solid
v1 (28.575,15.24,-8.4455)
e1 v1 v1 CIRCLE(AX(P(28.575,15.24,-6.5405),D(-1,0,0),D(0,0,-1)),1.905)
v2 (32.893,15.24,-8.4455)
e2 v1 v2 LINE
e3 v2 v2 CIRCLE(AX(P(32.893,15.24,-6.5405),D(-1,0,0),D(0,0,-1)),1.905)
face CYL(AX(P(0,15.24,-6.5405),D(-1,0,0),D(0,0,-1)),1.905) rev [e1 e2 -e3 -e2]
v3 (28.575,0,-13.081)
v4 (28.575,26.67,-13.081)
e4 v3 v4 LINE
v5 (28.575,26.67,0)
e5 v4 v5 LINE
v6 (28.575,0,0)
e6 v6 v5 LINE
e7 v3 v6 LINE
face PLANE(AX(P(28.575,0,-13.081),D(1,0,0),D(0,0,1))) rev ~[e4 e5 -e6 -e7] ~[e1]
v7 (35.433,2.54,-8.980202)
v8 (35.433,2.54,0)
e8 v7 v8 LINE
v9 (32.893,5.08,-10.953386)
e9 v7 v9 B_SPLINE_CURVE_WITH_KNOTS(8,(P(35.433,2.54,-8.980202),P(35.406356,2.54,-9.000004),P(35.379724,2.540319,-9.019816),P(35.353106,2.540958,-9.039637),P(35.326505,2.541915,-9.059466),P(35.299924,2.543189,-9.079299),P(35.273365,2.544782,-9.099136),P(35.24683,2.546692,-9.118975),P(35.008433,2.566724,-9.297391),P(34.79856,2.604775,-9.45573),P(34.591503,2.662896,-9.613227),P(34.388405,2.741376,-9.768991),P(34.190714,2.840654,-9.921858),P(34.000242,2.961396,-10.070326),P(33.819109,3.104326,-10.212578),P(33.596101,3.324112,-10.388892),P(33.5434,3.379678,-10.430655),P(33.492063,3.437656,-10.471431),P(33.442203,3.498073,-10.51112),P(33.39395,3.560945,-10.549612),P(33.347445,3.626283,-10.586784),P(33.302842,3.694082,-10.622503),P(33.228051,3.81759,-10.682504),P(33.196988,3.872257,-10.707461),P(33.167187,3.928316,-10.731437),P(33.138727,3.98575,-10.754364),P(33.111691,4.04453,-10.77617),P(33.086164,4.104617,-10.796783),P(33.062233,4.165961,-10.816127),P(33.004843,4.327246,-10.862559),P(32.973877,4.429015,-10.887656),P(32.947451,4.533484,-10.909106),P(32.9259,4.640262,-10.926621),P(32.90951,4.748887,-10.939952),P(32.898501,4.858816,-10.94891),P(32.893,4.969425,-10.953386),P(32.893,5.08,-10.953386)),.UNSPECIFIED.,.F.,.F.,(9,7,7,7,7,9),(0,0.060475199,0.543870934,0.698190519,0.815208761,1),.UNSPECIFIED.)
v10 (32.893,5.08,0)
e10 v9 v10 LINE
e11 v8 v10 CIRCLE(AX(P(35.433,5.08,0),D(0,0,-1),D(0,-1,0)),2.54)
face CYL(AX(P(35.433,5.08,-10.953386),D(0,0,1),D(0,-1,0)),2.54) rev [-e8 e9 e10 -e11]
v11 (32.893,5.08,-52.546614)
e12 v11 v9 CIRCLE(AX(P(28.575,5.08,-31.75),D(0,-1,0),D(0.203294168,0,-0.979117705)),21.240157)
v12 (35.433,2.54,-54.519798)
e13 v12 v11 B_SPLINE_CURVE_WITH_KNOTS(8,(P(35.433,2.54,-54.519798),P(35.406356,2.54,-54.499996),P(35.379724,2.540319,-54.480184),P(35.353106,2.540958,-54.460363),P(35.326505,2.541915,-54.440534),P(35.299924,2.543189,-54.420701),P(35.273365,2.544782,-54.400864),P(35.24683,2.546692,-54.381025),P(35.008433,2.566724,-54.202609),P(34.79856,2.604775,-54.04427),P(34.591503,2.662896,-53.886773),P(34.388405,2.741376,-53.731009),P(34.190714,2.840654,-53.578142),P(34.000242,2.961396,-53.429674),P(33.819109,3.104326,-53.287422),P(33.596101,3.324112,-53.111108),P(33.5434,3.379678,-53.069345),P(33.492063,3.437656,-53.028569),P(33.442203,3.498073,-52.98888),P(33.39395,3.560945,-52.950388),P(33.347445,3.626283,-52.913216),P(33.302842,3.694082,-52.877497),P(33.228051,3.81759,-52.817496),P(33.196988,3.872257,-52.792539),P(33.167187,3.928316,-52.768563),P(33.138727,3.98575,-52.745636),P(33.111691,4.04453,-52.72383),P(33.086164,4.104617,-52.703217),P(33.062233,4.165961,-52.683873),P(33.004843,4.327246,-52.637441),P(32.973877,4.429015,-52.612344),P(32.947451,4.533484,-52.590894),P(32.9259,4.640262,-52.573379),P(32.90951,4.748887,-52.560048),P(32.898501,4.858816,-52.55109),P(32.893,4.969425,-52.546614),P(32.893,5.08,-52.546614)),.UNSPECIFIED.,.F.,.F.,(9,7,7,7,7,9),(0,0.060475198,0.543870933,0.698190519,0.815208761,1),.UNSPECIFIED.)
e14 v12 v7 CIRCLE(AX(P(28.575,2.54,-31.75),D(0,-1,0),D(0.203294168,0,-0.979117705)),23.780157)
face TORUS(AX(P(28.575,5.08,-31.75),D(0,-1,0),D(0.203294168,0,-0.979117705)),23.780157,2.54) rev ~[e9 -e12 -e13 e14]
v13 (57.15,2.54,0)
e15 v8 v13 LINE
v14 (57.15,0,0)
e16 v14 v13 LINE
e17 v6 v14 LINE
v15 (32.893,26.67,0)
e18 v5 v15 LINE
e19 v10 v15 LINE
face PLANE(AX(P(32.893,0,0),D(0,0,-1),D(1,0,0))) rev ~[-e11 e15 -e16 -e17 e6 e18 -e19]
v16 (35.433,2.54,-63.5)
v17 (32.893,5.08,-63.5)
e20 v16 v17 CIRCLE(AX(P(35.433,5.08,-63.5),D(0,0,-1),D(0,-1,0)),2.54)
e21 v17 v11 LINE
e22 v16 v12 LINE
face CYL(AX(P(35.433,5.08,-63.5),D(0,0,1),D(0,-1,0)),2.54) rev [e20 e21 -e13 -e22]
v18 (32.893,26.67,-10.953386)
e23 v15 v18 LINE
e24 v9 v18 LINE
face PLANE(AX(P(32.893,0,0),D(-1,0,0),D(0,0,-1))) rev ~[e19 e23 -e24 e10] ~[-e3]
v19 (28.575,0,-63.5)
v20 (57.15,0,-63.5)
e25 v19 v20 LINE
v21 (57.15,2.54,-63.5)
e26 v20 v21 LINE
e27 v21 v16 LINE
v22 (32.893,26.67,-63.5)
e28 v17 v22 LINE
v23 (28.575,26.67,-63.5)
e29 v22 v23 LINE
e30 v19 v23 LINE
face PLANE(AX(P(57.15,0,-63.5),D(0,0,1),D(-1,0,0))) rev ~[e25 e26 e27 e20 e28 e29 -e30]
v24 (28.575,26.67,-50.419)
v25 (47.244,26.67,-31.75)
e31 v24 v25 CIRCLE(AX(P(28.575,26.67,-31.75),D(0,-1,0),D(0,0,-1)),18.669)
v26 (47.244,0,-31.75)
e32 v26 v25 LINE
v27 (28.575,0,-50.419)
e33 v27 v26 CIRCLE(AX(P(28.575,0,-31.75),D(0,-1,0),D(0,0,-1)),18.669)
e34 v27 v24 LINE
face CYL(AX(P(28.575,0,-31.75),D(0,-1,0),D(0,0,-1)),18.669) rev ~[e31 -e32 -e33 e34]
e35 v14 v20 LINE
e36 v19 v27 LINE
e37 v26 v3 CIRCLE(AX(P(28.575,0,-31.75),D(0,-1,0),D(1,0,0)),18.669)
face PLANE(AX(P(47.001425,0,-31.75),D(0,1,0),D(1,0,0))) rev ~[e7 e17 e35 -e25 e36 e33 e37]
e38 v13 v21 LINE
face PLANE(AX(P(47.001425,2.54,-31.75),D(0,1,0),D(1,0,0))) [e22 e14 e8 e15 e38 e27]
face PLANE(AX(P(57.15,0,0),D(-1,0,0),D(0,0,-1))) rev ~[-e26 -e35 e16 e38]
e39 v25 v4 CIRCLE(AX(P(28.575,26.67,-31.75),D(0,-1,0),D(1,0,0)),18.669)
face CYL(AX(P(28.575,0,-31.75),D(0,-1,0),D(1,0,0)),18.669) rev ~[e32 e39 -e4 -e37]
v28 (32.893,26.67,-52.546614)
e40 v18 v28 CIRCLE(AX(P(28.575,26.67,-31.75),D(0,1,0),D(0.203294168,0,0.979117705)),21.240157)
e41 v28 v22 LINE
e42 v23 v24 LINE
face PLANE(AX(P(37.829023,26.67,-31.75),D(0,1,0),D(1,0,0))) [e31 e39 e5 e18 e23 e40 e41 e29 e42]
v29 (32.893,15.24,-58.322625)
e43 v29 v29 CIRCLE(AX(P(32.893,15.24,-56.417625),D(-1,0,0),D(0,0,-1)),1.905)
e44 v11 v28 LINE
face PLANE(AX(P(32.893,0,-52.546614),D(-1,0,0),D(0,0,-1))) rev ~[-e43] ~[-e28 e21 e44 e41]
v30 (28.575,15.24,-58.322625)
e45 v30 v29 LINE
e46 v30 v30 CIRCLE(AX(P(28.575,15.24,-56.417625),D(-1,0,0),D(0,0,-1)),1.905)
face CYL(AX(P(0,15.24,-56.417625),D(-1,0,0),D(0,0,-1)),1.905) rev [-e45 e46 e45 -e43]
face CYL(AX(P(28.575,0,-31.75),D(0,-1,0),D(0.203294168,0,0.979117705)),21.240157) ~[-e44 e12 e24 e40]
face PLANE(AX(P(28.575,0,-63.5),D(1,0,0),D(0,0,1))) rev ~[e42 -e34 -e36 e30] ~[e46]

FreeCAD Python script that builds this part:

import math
import FreeCAD as App
import Part
import Sketcher
from FreeCAD import Vector
Q = App.Units.Quantity


def edges_at(feature, points):
    """Names of the edges that pass closest to the given points."""
    edges = feature.Shape.Edges
    near = lambda p: min(range(len(edges)), key=lambda i: edges[i].distToShape(Part.Vertex(*p))[0])
    return sorted({f"Edge{near(p) + 1}" for p in points})

doc = App.newDocument("Part")
body = doc.addObject("PartDesign::Body", "Body")

sketch1 = doc.addObject("Sketcher::SketchObject", "Sketch")
body.addObject(sketch1)
sketch1.AttachmentSupport = (doc.XZ_Plane, [""])
sketch1.MapMode = "FlatFace"
sketch1.addGeometry([
    Part.LineSegment(Vector(28.6, -13.1, 0), Vector(28.6, 0, 0)),
    Part.LineSegment(Vector(28.6, 0, 0), Vector(32.9, 0, 0)),
    Part.LineSegment(Vector(32.9, 0, 0), Vector(32.9, -11, 0)),
    Part.ArcOfCircle(Part.Circle(Vector(28.6, -31.8, 0), Vector(0, 0, 1), 21.2), math.radians(-78), math.radians(78)),
    Part.LineSegment(Vector(32.9, -52.5, 0), Vector(32.9, -63.5, 0)),
    Part.LineSegment(Vector(32.9, -63.5, 0), Vector(28.6, -63.5, 0)),
    Part.LineSegment(Vector(28.6, -63.5, 0), Vector(28.6, -50.4, 0)),
    Part.ArcOfCircle(Part.Circle(Vector(28.6, -31.8, 0), Vector(0, 0, 1), 18.7), math.radians(-90), math.radians(0)),
    Part.ArcOfCircle(Part.Circle(Vector(28.6, -31.8, 0), Vector(0, 0, 1), 18.7), math.radians(0), math.radians(90)),
], False)
sketch1.addConstraint([
    Sketcher.Constraint("Coincident", 0, 2, 1, 1),
    Sketcher.Constraint("Coincident", 1, 2, 2, 1),
    Sketcher.Constraint("Coincident", 2, 2, 3, 2),
    Sketcher.Constraint("Coincident", 3, 1, 4, 1),
    Sketcher.Constraint("Coincident", 4, 2, 5, 1),
    Sketcher.Constraint("Coincident", 5, 2, 6, 1),
    Sketcher.Constraint("Coincident", 6, 2, 7, 1),
    Sketcher.Constraint("Tangent", 7, 2, 8, 1),
    Sketcher.Constraint("Coincident", 8, 2, 0, 1),
    Sketcher.Constraint("Vertical", 0),
    Sketcher.Constraint("Horizontal", 1),
    Sketcher.Constraint("Vertical", 2),
    Sketcher.Constraint("Vertical", 4),
    Sketcher.Constraint("Horizontal", 5),
    Sketcher.Constraint("Vertical", 6),
    Sketcher.Constraint("Coincident", 7, 3, 3, 3),
    Sketcher.Constraint("Equal", 7, 8),
    Sketcher.Constraint("PointOnObject", 0, 2, -1),
    Sketcher.Constraint("Horizontal", 8, 3, 7, 2),
    Sketcher.Constraint("Vertical", 8, 3, 0, 2),
    Sketcher.Constraint("Vertical", 2, 2, 3, 1),
    Sketcher.Constraint("Vertical", 0, 2, 5, 2),
    Sketcher.Constraint("Equal", 2, 4),
    Sketcher.Constraint("Radius", 7, Q("0.735 in")),
    Sketcher.Constraint("DistanceX", 1, 1, 1, 2, Q("0.17 in")),
    Sketcher.Constraint("DistanceY", 4, 2, -1, 1, Q("2.5 in")),
    Sketcher.Constraint("DistanceX", -1, 1, 7, 2, Q("1.86 in")),
    Sketcher.Constraint("Radius", 3, Q("21.240157 mm")),
])
pad1 = doc.addObject("PartDesign::Pad", "Pad")
body.addObject(pad1)
pad1.Profile = sketch1
pad1.Length = Q("1.05 in")
pad1.Reversed = True

sketch2 = doc.addObject("Sketcher::SketchObject", "Sketch001")
body.addObject(sketch2)
sketch2.AttachmentSupport = (doc.XZ_Plane, [""])
sketch2.MapMode = "FlatFace"
sketch2.addGeometry([
    Part.LineSegment(Vector(33, -11, 0), Vector(33, 0, 0)),
    Part.LineSegment(Vector(33, 0, 0), Vector(57, 0, 0)),
    Part.LineSegment(Vector(57, 0, 0), Vector(57, -64, 0)),
    Part.LineSegment(Vector(57, -64, 0), Vector(33, -64, 0)),
    Part.LineSegment(Vector(33, -64, 0), Vector(33, -53, 0)),
    Part.ArcOfCircle(Part.Circle(Vector(29, -32, 0), Vector(0, 0, 1), 21), math.radians(-78), math.radians(78)),
], False)
sketch2.addConstraint([
    Sketcher.Constraint("Coincident", 0, 2, 1, 1),
    Sketcher.Constraint("Coincident", 1, 2, 2, 1),
    Sketcher.Constraint("Coincident", 2, 2, 3, 1),
    Sketcher.Constraint("Coincident", 3, 2, 4, 1),
    Sketcher.Constraint("Coincident", 4, 2, 5, 1),
    Sketcher.Constraint("Coincident", 5, 2, 0, 1),
    Sketcher.Constraint("Vertical", 0),
    Sketcher.Constraint("Horizontal", 1),
    Sketcher.Constraint("Vertical", 2),
    Sketcher.Constraint("Horizontal", 3),
    Sketcher.Constraint("Vertical", 4),
    Sketcher.Constraint("PointOnObject", 0, 2, -1),
    Sketcher.Constraint("Vertical", 0, 2, 3, 2),
    Sketcher.Constraint("Equal", 0, 4),
    Sketcher.Constraint("DistanceY", 2, 2, 2, 1, Q("2.5 in")),
    Sketcher.Constraint("DistanceX", 1, 1, 1, 2, Q("0.955 in")),
    Sketcher.Constraint("DistanceX", -1, 1, 1, 2, Q("2.25 in")),
    Sketcher.Constraint("DistanceX", 5, 3, 0, 2, Q("0.17 in")),
    Sketcher.Constraint("Radius", 5, Q("21.240157 mm")),
])
pad2 = doc.addObject("PartDesign::Pad", "Pad001")
body.addObject(pad2)
pad2.Profile = sketch2
pad2.Length = Q("0.1 in")
pad2.Reversed = True
doc.recompute()

fillet = doc.addObject("PartDesign::Fillet", "Fillet")
body.addObject(fillet)
fillet.Base = (pad2, edges_at(pad2, [(49.815, 2.54, -31.75), (32.893, 2.54, -5.477), (32.893, 2.54, -58.023)]))
fillet.Radius = Q("0.1 in")

sketch3 = doc.addObject("Sketcher::SketchObject", "Sketch002")
body.addObject(sketch3)
sketch3.AttachmentSupport = (doc.YZ_Plane, [""])
sketch3.MapMode = "FlatFace"
sketch3.addGeometry([
    Part.Circle(Vector(15.2, -6.5, 0), Vector(0, 0, 1), 1.9),
    Part.Circle(Vector(15.2, -56.4, 0), Vector(0, 0, 1), 1.9),
], False)
sketch3.addConstraint([
    Sketcher.Constraint("Equal", 0, 1),
    Sketcher.Constraint("Vertical", 0, 3, 1, 3),
    Sketcher.Constraint("Diameter", 0, Q("0.15 in")),
    Sketcher.Constraint("DistanceX", -1, 1, 0, 3, Q("0.6 in")),
    Sketcher.Constraint("DistanceY", 0, 3, -1, 1, Q("0.2575 in")),
    Sketcher.Constraint("DistanceY", 1, 3, -1, 1, Q("56.417625 mm")),
])
pocket1 = doc.addObject("PartDesign::Pocket", "Pocket")
body.addObject(pocket1)
pocket1.Profile = sketch3
pocket1.Type = "ThroughAll"
pocket1.Midplane = True

doc.recompute()
